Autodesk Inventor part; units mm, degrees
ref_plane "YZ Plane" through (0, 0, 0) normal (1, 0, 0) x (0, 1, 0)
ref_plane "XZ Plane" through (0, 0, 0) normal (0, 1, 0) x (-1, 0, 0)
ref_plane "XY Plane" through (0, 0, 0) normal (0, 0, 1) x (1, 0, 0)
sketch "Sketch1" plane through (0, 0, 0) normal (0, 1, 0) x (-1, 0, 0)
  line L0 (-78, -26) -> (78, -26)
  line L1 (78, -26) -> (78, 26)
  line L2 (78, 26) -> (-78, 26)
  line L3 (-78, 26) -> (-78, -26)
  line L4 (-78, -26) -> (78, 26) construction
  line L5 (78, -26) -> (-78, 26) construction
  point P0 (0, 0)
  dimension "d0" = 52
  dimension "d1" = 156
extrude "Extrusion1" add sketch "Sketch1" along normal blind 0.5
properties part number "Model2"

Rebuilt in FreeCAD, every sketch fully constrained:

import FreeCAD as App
import Part
import Sketcher
Q = App.Units.Quantity

doc = App.newDocument("Part")
params = doc.addObject("Spreadsheet::Sheet", "Params")
for row, (alias, value) in enumerate([
    ("sketch1_width", "156 mm"),
    ("sketch1_height", "52 mm"),
    ("pad1_length", "0.5 mm"),
], start=1):
    params.set(f"A{row}", alias)
    params.set(f"B{row}", "=" + value)
    params.setAlias(f"B{row}", alias)

body = doc.addObject("PartDesign::Body", "Body")

sketch1 = body.newObject("Sketcher::SketchObject", "Sketch")
sketch1.AttachmentSupport = (doc.getObject("XZ_Plane"), [""])
sketch1.MapMode = "FlatFace"
sketch1.addGeometry([
    Part.LineSegment(App.Vector(78, 26, 0), App.Vector(78, -26, 0)),
    Part.LineSegment(App.Vector(78, -26, 0), App.Vector(-78, -26, 0)),
    Part.LineSegment(App.Vector(-78, -26, 0), App.Vector(-78, 26, 0)),
    Part.LineSegment(App.Vector(-78, 26, 0), App.Vector(78, 26, 0)),
], False)
sketch1.addConstraint([
    Sketcher.Constraint("Coincident", 0, 2, 1, 1),
    Sketcher.Constraint("Coincident", 1, 2, 2, 1),
    Sketcher.Constraint("Coincident", 2, 2, 3, 1),
    Sketcher.Constraint("Coincident", 3, 2, 0, 1),
    Sketcher.Constraint("Vertical", 0),
    Sketcher.Constraint("Horizontal", 1),
    Sketcher.Constraint("Vertical", 2),
    Sketcher.Constraint("Horizontal", 3),
    Sketcher.Constraint("Symmetric", 0, 2, 2, 2, -1, 1),
    Sketcher.Constraint("DistanceX", 1, 2, 1, 1, Q("156 mm")),
    Sketcher.Constraint("DistanceY", 0, 2, 0, 1, Q("52 mm")),
])
sketch1.setExpression("Constraints[9]", "Params.sketch1_width")
sketch1.setExpression("Constraints[10]", "Params.sketch1_height")
pad1 = body.newObject("PartDesign::Pad", "Pad")
pad1.Profile = sketch1
pad1.setExpression("Length", "Params.pad1_length")
pad1.Reversed = True

doc.recompute()
